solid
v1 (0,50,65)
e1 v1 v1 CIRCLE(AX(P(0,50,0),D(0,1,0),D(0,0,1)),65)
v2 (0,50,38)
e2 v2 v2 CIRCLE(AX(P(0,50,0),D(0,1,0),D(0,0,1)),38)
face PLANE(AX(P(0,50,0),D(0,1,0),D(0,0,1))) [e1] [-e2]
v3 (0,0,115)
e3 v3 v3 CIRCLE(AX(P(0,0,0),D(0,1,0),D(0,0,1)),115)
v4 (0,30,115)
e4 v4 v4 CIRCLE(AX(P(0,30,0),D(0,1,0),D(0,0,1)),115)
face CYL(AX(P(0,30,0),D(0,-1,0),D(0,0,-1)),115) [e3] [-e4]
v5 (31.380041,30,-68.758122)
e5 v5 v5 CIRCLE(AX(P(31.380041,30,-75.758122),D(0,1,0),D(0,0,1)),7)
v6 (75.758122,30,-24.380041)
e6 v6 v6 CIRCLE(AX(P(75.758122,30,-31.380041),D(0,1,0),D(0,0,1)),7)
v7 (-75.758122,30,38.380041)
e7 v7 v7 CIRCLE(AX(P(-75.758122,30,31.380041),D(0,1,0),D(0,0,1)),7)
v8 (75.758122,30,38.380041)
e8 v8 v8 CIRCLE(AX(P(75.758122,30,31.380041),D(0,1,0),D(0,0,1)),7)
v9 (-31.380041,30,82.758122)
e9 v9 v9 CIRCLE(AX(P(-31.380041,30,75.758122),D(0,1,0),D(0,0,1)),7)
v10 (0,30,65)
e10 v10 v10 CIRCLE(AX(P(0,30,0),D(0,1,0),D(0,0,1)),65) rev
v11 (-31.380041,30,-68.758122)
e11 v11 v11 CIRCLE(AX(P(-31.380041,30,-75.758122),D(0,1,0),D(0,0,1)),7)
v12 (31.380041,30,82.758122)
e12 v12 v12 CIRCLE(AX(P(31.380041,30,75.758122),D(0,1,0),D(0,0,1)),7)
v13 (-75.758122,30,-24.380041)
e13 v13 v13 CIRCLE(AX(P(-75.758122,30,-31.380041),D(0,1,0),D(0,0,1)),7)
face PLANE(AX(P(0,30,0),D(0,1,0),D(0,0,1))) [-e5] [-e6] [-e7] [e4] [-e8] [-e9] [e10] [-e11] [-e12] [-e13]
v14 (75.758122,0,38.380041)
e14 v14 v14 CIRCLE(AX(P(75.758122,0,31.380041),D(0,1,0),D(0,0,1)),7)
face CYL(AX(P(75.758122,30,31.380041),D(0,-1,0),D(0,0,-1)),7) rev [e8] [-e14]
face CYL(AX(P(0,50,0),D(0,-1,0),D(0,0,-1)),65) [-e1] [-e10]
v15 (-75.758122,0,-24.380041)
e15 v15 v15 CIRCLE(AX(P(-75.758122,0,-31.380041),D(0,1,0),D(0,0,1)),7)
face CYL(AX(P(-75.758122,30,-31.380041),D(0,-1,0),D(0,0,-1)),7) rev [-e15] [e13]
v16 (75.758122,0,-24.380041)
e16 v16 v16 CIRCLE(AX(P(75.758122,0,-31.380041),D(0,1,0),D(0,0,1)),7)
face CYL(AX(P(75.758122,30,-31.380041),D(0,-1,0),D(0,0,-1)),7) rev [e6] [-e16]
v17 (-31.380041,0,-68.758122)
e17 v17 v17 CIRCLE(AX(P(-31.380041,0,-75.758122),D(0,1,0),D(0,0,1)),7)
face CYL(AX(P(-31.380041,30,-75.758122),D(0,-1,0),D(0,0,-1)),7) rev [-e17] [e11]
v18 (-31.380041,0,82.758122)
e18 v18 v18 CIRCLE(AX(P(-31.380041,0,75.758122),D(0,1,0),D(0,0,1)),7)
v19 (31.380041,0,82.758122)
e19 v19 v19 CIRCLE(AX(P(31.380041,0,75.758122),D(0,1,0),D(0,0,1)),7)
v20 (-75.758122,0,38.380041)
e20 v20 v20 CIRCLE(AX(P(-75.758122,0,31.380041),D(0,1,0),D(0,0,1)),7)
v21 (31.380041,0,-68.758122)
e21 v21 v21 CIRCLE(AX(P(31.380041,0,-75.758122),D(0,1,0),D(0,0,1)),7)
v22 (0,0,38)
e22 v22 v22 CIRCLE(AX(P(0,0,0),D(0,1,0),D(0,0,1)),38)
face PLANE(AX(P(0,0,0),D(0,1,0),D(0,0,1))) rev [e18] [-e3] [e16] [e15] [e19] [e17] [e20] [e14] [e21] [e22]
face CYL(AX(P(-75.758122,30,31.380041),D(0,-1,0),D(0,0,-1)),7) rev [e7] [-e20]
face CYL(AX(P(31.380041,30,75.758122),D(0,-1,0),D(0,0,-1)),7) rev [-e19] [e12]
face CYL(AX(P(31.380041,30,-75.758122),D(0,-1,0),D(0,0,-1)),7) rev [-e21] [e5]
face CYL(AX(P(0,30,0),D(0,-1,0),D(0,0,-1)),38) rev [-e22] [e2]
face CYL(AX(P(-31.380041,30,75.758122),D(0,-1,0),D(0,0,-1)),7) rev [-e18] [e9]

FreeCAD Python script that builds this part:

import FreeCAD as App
import Part
import Sketcher
Q = App.Units.Quantity

doc = App.newDocument("Part")
body = doc.addObject("PartDesign::Body", "Body")

# Sketch on XZ plane
sketch1 = doc.addObject("Sketcher::SketchObject", "Sketch")
body.addObject(sketch1)
sketch1.AttachmentSupport = (doc.XZ_Plane, [""])
sketch1.MapMode = "FlatFace"
sketch1.addGeometry([
    Part.Circle(App.Vector(0, 0, 0), App.Vector(0, 0, 1), 115),  # 0
    Part.Circle(App.Vector(-75.758122, -31.380041, 0), App.Vector(0, 0, 1), 7),  # 1
    Part.Circle(App.Vector(-31.380041, -75.758122, 0), App.Vector(0, 0, 1), 7),  # 2
    Part.Circle(App.Vector(-75.758122, 31.380041, 0), App.Vector(0, 0, 1), 7),  # 3
    Part.Circle(App.Vector(-31.380041, 75.758122, 0), App.Vector(0, 0, 1), 7),  # 4
    Part.Circle(App.Vector(31.380041, -75.758122, 0), App.Vector(0, 0, 1), 7),  # 5
    Part.Circle(App.Vector(75.758122, -31.380041, 0), App.Vector(0, 0, 1), 7),  # 6
    Part.Circle(App.Vector(0, 0, 0), App.Vector(0, 0, 1), 38),  # 7
    Part.Circle(App.Vector(31.380041, 75.758122, 0), App.Vector(0, 0, 1), 7),  # 8
    Part.Circle(App.Vector(75.758122, 31.380041, 0), App.Vector(0, 0, 1), 7),  # 9
], False)
sketch1.addConstraint([
    Sketcher.Constraint("Coincident", 0, 3, -1, 1),
    Sketcher.Constraint("Coincident", 7, 3, -1, 1),
    Sketcher.Constraint("Equal", 1, 2),
    Sketcher.Constraint("Equal", 2, 3),
    Sketcher.Constraint("Equal", 3, 4),
    Sketcher.Constraint("Equal", 4, 5),
    Sketcher.Constraint("Equal", 5, 6),
    Sketcher.Constraint("Equal", 6, 8),
    Sketcher.Constraint("Equal", 8, 9),
    Sketcher.Constraint("Symmetric", 4, 3, 5, 3, -1, 1),
    Sketcher.Constraint("Symmetric", 3, 3, 6, 3, -1, 1),
    Sketcher.Constraint("Symmetric", 2, 3, 8, 3, -1, 1),
    Sketcher.Constraint("Symmetric", 1, 3, 9, 3, -1, 1),
    Sketcher.Constraint("Symmetric", 2, 3, 5, 3, -2),
    Sketcher.Constraint("Symmetric", 1, 3, 6, 3, -2),
    Sketcher.Constraint("Diameter", 0, Q("230 mm")),
    Sketcher.Constraint("Diameter", 1, Q("14 mm")),
    Sketcher.Constraint("Diameter", 7, Q("76 mm")),
    Sketcher.Constraint("DistanceX", 1, 3, -1, 1, Q("75.758122 mm")),
    Sketcher.Constraint("DistanceY", 1, 3, -1, 1, Q("31.380041 mm")),
    Sketcher.Constraint("DistanceX", 2, 3, -1, 1, Q("31.380041 mm")),
    Sketcher.Constraint("DistanceY", 2, 3, -1, 1, Q("75.758122 mm")),
])
pad1 = doc.addObject("PartDesign::Pad", "Pad")
body.addObject(pad1)
pad1.Profile = sketch1
pad1.Length = 30
pad1.Reversed = True

# Sketch on XZ plane
sketch2 = doc.addObject("Sketcher::SketchObject", "Sketch001")
body.addObject(sketch2)
sketch2.AttachmentSupport = (doc.XZ_Plane, [""])
sketch2.MapMode = "FlatFace"
sketch2.addGeometry([
    Part.Circle(App.Vector(0, 0, 0), App.Vector(0, 0, 1), 65),
    Part.Circle(App.Vector(0, 0, 0), App.Vector(0, 0, 1), 38),
], False)
sketch2.addConstraint([
    Sketcher.Constraint("Coincident", 0, 3, -1, 1),
    Sketcher.Constraint("Coincident", 1, 3, -1, 1),
    Sketcher.Constraint("Diameter", 0, Q("130 mm")),
    Sketcher.Constraint("Diameter", 1, Q("76 mm")),
])
pad2 = doc.addObject("PartDesign::Pad", "Pad001")
body.addObject(pad2)
pad2.Profile = sketch2
pad2.Length = 50
pad2.Reversed = True

doc.recompute()
